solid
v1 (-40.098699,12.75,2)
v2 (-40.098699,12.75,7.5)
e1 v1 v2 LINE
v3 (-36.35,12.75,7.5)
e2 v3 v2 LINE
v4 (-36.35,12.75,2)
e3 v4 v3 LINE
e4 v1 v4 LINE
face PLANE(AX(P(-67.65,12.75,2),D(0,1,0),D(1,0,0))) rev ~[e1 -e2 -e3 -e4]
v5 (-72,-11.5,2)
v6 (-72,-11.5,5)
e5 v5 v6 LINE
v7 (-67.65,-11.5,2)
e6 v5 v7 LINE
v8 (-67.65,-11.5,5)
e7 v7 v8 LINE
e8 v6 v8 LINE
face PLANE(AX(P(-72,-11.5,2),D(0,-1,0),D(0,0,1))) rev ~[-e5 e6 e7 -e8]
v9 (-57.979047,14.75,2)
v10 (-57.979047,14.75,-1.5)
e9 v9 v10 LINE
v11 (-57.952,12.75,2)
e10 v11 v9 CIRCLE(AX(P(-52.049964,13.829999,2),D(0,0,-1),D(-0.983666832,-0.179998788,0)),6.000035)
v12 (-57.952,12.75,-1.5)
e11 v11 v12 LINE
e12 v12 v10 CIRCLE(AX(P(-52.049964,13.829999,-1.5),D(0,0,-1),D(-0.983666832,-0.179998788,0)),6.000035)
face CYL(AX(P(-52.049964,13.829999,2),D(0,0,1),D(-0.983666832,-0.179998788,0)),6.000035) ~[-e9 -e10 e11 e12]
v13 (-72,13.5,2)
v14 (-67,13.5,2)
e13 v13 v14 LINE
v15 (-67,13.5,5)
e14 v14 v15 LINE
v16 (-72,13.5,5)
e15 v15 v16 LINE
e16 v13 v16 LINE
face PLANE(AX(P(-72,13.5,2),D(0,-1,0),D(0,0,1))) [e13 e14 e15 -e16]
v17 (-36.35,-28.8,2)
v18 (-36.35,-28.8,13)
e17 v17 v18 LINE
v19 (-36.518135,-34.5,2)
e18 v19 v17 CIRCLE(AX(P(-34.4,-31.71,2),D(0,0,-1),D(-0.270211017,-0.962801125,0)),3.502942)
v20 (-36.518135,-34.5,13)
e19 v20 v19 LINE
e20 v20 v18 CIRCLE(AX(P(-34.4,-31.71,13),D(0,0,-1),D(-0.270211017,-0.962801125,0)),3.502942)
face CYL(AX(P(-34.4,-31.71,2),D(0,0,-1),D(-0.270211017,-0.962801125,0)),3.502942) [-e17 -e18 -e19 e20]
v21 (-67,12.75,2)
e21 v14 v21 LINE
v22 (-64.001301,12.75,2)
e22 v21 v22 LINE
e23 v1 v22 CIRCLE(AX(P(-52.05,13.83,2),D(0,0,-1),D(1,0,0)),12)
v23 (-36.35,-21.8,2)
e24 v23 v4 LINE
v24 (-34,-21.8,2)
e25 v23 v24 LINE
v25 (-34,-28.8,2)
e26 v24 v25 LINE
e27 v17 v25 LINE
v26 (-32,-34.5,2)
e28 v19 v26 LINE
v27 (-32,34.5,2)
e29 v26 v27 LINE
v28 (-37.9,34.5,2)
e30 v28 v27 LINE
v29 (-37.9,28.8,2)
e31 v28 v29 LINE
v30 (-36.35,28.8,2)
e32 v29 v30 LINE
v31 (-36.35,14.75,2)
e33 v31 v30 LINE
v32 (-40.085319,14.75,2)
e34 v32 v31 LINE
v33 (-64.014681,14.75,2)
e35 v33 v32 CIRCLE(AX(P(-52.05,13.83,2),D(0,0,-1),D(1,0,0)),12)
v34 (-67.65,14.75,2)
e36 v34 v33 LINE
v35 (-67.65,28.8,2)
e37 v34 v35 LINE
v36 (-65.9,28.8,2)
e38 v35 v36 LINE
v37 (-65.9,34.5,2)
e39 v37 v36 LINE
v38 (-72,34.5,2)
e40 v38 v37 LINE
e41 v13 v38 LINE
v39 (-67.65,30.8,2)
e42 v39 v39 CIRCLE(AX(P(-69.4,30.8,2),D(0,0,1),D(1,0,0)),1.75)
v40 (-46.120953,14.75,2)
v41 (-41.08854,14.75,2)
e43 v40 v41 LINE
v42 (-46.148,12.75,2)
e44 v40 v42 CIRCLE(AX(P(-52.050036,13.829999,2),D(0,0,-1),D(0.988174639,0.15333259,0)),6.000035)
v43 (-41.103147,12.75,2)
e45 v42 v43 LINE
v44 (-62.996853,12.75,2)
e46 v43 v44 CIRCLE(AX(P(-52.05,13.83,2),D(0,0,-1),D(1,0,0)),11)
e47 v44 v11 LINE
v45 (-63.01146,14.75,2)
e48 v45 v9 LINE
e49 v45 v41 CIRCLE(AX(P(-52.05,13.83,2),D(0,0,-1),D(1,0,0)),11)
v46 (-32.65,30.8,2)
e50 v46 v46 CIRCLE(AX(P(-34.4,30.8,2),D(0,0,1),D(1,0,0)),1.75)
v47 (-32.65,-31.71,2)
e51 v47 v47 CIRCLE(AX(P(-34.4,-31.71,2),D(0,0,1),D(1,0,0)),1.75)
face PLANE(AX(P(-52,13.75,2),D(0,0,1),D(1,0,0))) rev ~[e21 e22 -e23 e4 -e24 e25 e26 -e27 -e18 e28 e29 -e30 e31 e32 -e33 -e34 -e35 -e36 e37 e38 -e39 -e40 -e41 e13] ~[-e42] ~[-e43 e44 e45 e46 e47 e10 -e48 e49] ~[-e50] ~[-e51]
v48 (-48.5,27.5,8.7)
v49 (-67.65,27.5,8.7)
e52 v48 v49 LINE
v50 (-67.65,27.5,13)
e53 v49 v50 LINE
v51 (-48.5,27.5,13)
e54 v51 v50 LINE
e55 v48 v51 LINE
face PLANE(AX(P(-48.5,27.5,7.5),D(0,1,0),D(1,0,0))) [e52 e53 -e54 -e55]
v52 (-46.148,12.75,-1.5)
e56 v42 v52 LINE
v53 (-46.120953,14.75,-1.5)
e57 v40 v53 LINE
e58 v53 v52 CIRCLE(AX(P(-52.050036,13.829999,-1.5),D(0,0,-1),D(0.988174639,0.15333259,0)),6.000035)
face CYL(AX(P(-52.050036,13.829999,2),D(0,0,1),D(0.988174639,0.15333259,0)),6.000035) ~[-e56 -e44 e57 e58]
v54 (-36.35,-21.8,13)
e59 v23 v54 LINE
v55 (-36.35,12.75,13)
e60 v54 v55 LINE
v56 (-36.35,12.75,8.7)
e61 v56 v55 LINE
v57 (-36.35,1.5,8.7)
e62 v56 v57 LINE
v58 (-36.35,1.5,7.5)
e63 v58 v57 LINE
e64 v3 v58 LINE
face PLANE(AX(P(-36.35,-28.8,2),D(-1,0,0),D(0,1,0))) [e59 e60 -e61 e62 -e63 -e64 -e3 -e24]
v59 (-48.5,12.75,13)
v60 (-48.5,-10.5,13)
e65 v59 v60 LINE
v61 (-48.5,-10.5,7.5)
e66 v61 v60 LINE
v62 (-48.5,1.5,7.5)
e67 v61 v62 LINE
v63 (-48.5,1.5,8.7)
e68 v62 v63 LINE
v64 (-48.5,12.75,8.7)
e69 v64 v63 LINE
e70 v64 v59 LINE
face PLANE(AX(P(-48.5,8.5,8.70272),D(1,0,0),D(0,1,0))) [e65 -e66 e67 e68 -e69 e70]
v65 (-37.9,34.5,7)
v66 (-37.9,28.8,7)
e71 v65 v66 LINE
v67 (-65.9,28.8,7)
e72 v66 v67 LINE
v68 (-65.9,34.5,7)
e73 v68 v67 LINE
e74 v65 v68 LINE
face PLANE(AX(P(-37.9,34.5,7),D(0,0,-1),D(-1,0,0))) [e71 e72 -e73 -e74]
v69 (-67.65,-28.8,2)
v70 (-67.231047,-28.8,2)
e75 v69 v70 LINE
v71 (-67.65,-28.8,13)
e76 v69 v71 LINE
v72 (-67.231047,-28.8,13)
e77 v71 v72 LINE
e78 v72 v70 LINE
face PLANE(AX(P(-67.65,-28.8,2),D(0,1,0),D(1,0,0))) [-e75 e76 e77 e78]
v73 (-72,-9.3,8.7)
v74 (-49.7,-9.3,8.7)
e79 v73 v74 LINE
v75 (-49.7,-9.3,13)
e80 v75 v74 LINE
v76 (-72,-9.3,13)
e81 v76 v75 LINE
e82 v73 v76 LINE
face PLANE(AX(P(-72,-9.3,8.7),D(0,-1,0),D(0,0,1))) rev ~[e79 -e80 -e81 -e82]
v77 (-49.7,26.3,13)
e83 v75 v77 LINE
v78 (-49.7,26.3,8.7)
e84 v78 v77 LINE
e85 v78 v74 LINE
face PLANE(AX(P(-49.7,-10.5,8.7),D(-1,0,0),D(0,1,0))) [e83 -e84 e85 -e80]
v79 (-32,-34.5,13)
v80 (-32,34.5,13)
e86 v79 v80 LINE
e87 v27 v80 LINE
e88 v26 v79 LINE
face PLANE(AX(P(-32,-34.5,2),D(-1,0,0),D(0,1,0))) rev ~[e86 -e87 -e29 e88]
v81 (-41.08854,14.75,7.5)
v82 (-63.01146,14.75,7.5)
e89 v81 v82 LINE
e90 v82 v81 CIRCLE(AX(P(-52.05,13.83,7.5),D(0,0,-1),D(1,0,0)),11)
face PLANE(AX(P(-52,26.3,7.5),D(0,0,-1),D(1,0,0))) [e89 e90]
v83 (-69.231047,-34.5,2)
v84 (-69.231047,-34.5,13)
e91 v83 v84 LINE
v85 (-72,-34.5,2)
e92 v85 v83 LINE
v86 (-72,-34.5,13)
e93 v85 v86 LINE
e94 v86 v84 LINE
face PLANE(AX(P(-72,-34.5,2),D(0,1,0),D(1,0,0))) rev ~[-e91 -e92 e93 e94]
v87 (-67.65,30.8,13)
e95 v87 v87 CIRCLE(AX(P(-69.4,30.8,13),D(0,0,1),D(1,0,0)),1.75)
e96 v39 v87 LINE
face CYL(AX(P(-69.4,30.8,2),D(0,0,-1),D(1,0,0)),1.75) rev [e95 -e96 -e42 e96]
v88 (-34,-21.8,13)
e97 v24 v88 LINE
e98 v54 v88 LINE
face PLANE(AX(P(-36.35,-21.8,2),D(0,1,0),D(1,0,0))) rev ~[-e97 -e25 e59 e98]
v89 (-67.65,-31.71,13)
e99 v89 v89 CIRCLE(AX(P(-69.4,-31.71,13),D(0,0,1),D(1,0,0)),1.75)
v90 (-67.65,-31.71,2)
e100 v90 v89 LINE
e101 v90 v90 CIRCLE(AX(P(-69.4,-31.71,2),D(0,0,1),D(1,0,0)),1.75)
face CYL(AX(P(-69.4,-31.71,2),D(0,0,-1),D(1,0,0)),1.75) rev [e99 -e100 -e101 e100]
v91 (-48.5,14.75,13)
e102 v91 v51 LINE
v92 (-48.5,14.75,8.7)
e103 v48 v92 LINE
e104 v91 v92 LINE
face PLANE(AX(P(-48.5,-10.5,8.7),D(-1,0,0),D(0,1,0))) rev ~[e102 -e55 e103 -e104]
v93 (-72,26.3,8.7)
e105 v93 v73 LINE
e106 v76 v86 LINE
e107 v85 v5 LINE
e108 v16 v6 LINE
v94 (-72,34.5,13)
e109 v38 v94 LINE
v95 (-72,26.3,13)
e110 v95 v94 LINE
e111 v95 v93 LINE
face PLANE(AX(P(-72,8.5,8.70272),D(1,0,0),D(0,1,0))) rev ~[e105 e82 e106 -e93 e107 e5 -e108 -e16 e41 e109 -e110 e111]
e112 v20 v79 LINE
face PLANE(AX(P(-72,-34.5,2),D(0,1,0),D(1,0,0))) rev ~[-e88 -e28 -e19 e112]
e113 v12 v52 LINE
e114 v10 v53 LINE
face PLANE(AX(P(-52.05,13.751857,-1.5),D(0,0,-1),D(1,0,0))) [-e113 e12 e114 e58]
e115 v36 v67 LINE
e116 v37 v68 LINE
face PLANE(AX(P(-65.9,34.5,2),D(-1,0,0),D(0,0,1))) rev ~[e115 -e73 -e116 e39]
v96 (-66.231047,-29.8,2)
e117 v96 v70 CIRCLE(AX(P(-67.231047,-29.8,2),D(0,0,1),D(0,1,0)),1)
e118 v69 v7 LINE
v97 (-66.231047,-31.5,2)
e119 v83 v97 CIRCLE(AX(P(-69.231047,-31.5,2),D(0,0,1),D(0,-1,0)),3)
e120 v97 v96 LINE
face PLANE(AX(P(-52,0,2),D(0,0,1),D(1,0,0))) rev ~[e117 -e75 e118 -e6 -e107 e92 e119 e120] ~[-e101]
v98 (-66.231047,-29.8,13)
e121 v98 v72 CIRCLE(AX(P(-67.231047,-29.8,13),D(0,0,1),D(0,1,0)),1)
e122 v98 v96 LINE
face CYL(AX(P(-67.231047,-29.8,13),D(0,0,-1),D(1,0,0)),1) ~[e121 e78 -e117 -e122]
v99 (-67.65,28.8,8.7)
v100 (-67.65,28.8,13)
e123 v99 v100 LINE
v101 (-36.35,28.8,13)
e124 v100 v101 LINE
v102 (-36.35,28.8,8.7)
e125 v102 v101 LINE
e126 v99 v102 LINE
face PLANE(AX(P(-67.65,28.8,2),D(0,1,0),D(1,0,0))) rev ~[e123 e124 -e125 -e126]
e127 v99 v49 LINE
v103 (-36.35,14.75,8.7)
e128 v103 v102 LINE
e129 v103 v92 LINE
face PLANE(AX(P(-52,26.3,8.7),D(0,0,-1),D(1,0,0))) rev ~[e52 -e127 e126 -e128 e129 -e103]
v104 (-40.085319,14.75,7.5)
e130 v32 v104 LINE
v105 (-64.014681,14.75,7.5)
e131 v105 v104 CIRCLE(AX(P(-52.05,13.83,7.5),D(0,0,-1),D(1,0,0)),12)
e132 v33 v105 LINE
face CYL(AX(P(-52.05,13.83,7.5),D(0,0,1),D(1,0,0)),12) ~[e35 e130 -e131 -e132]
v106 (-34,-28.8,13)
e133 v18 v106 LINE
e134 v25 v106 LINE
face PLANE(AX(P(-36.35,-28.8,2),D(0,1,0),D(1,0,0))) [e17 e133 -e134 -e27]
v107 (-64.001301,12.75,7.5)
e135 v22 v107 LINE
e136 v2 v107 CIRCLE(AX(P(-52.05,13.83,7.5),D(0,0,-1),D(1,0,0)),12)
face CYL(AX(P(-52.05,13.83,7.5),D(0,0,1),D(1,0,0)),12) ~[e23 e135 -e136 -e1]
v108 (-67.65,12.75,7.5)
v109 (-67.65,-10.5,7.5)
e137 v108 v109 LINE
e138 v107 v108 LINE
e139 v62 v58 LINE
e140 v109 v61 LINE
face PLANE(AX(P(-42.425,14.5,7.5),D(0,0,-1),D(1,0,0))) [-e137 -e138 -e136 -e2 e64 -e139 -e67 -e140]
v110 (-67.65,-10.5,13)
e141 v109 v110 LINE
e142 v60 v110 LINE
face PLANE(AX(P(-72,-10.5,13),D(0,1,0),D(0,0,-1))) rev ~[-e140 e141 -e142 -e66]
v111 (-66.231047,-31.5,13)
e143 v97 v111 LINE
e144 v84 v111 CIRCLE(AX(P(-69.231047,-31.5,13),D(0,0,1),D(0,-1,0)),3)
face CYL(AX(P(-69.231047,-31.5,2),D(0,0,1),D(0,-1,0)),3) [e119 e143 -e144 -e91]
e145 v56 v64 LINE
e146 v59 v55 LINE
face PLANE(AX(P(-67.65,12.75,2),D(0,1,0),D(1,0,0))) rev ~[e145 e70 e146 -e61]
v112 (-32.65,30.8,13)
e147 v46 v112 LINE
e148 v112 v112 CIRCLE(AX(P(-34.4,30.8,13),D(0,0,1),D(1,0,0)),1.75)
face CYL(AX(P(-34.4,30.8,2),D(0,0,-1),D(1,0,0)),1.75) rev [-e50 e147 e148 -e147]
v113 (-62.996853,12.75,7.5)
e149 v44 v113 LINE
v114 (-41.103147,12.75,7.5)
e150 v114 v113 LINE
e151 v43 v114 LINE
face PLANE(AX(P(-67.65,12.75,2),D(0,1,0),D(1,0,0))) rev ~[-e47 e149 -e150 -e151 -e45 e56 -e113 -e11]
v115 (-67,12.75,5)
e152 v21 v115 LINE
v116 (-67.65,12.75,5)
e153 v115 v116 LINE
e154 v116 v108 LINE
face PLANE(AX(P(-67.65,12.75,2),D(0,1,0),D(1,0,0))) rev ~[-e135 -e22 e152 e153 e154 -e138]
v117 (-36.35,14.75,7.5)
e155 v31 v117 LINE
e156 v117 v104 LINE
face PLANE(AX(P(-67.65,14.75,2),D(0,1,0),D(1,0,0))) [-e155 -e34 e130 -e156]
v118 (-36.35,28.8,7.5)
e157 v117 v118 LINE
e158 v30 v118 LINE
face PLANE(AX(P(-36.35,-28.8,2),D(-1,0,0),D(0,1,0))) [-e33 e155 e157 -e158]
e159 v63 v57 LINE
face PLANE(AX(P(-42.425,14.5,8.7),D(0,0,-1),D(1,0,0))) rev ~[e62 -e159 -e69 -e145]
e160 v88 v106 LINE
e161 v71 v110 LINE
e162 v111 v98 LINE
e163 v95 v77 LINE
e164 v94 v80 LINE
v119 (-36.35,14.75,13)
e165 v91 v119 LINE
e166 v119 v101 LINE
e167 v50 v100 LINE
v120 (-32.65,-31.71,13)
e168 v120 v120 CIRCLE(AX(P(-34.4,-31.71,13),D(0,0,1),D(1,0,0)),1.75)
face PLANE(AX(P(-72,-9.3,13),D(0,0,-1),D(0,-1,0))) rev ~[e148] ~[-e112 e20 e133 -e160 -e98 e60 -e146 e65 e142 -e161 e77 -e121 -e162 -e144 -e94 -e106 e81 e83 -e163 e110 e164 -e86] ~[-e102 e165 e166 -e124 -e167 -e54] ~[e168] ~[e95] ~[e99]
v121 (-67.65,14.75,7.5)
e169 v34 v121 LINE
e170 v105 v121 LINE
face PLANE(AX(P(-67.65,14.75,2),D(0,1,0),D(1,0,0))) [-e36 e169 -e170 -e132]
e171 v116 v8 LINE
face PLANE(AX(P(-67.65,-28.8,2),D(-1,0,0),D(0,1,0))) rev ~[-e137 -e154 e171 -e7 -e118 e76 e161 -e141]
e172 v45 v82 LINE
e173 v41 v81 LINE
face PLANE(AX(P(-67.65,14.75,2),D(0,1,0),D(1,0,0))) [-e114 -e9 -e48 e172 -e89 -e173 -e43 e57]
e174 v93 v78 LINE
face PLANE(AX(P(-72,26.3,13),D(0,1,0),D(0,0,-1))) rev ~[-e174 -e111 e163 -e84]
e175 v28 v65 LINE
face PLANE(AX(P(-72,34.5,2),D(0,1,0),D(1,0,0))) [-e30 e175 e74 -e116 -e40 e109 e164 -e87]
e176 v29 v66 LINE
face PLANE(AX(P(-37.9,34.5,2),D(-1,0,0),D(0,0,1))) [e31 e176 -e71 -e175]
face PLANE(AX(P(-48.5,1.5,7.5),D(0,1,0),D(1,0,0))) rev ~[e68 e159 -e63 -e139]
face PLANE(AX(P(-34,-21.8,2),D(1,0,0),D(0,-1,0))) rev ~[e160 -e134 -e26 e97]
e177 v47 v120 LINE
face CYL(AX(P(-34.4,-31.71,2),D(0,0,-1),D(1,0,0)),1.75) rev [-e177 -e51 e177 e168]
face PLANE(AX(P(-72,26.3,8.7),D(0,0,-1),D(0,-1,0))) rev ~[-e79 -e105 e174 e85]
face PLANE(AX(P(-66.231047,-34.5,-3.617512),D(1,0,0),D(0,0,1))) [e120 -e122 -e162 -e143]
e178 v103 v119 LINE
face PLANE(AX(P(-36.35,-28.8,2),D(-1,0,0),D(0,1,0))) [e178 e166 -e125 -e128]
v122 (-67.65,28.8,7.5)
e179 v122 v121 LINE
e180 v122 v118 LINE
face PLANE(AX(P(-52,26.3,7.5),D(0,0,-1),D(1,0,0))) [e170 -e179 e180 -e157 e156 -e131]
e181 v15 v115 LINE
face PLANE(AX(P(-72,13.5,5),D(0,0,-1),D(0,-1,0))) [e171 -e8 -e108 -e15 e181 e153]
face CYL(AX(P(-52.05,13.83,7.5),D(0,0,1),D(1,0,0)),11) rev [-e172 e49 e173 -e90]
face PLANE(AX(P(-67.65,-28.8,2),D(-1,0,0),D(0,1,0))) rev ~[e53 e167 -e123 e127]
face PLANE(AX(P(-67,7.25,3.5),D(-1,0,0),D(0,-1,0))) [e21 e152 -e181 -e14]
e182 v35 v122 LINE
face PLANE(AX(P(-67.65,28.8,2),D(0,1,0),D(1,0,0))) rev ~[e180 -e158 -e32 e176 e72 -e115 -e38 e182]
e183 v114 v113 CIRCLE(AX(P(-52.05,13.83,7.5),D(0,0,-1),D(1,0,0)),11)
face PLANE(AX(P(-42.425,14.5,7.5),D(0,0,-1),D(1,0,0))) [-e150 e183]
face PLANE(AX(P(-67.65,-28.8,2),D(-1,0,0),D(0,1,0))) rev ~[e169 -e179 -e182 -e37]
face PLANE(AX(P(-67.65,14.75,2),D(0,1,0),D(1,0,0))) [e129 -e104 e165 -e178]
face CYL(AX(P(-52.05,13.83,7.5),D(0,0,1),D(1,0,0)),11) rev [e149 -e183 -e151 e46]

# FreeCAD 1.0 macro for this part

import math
import FreeCAD as App
import Part
import Sketcher

V = App.Vector
Q = App.Units.Quantity


def edges_at(feature, points):
    """Names of the edges that pass closest to the given points."""
    edges = feature.Shape.Edges
    near = lambda p: min(range(len(edges)), key=lambda i: edges[i].distToShape(Part.Vertex(*p))[0])
    return sorted({f"Edge{near(p) + 1}" for p in points})

doc = App.newDocument("Part")
body = doc.addObject("PartDesign::Body", "Body")

# Sketch on XY plane
sketch1 = doc.addObject("Sketcher::SketchObject", "Sketch")
body.addObject(sketch1)
sketch1.AttachmentSupport = (doc.XY_Plane, [""])
sketch1.MapMode = "FlatFace"
sketch1.addGeometry(Part.LineSegment(V(-20.1, 33.5, 0), V(-20.1, -35.5, 0)), False)
sketch1.addGeometry(Part.LineSegment(V(-20.1, -35.5, 0), V(19.9, -35.5, 0)), False)
sketch1.addGeometry(Part.LineSegment(V(19.9, -35.5, 0), V(19.9, 33.5, 0)), False)
sketch1.addGeometry(Part.LineSegment(V(19.9, 33.5, 0), V(-20.1, 33.5, 0)), False)
sketch1.addGeometry(Part.Circle(V(-17.5, -32.7, 0), V(0, 0, 1), 1.8), False)
sketch1.addGeometry(Part.Circle(V(17.5, -32.7, 0), V(0, 0, 1), 1.8), False)
sketch1.addGeometry(Part.LineSegment(V(15.6, -29.8, 0), V(-15.8, -29.8, 0)), False)
sketch1.addGeometry(Part.LineSegment(V(-15.8, -29.8, 0), V(-15.8, 27.8, 0)), False)
sketch1.addGeometry(Part.LineSegment(V(-15.8, 27.8, 0), V(15.6, 27.8, 0)), False)
sketch1.addGeometry(Part.LineSegment(V(15.6, 27.8, 0), V(15.6, -29.8, 0)), False)
sketch1.addGeometry(Part.Circle(V(-17.5, 29.8, 0), V(0, 0, 1), 1.8), False)
sketch1.addGeometry(Part.Circle(V(17.5, 29.8, 0), V(0, 0, 1), 1.8), False)
sketch1.addConstraint(Sketcher.Constraint("Coincident", 0, 2, 1, 1))
sketch1.addConstraint(Sketcher.Constraint("Coincident", 1, 2, 2, 1))
sketch1.addConstraint(Sketcher.Constraint("Coincident", 2, 2, 3, 1))
sketch1.addConstraint(Sketcher.Constraint("Coincident", 3, 2, 0, 1))
sketch1.addConstraint(Sketcher.Constraint("Coincident", 6, 2, 7, 1))
sketch1.addConstraint(Sketcher.Constraint("Coincident", 7, 2, 8, 1))
sketch1.addConstraint(Sketcher.Constraint("Coincident", 8, 2, 9, 1))
sketch1.addConstraint(Sketcher.Constraint("Coincident", 9, 2, 6, 1))
sketch1.addConstraint(Sketcher.Constraint("Vertical", 0))
sketch1.addConstraint(Sketcher.Constraint("Horizontal", 1))
sketch1.addConstraint(Sketcher.Constraint("Vertical", 2))
sketch1.addConstraint(Sketcher.Constraint("Horizontal", 3))
sketch1.addConstraint(Sketcher.Constraint("Horizontal", 6))
sketch1.addConstraint(Sketcher.Constraint("Vertical", 7))
sketch1.addConstraint(Sketcher.Constraint("Horizontal", 8))
sketch1.addConstraint(Sketcher.Constraint("Vertical", 9))
sketch1.addConstraint(Sketcher.Constraint("Equal", 4, 5))
sketch1.addConstraint(Sketcher.Constraint("Equal", 5, 10))
sketch1.addConstraint(Sketcher.Constraint("Equal", 10, 11))
sketch1.addConstraint(Sketcher.Constraint("Symmetric", 4, 3, 5, 3, -2))
sketch1.addConstraint(Sketcher.Constraint("Symmetric", 10, 3, 11, 3, -2))
sketch1.addConstraint(Sketcher.Constraint("Vertical", 4, 3, 10, 3))
sketch1.addConstraint(Sketcher.Constraint("Diameter", 4, Q("3.5 mm")))
sketch1.addConstraint(Sketcher.Constraint("DistanceX", 1, 1, 1, 2, Q("40 mm")))
sketch1.addConstraint(Sketcher.Constraint("DistanceY", 0, 2, 0, 1, Q("69 mm")))
sketch1.addConstraint(Sketcher.Constraint("DistanceX", 6, 2, 6, 1, Q("31.3 mm")))
sketch1.addConstraint(Sketcher.Constraint("DistanceY", 7, 1, 7, 2, Q("57.6 mm")))
sketch1.addConstraint(Sketcher.Constraint("DistanceX", 4, 3, 5, 3, Q("35 mm")))
sketch1.addConstraint(Sketcher.Constraint("DistanceY", 7, 2, 10, 3, Q("2 mm")))
sketch1.addConstraint(Sketcher.Constraint("DistanceY", -1, 1, 10, 3, Q("29.8 mm")))
sketch1.addConstraint(Sketcher.Constraint("DistanceX", 0, 2, -1, 1, Q("20.1 mm")))
sketch1.addConstraint(Sketcher.Constraint("DistanceY", 0, 2, -1, 1, Q("35.5 mm")))
sketch1.addConstraint(Sketcher.Constraint("DistanceY", 4, 3, -1, 1, Q("32.71 mm")))
sketch1.addConstraint(Sketcher.Constraint("DistanceX", 6, 2, -1, 1, Q("15.75 mm")))
pad1 = doc.addObject("PartDesign::Pad", "Pad")
body.addObject(pad1)
pad1.Profile = sketch1
pad1.Length = 11

# Sketch on XZ plane
sketch2 = doc.addObject("Sketcher::SketchObject", "Sketch001")
body.addObject(sketch2)
sketch2.AttachmentSupport = (doc.XZ_Plane, [""])
sketch2.MapMode = "FlatFace"
sketch2.AttachmentOffset = App.Placement(V(0, 0, 35.5), App.Rotation())
sketch2.addGeometry(Part.LineSegment(V(-14, 17, 0), V(-14, -6, 0)), False)
sketch2.addGeometry(Part.LineSegment(V(-14, -6, 0), V(14, -6, 0)), False)
sketch2.addGeometry(Part.LineSegment(V(14, -6, 0), V(14, 17, 0)), False)
sketch2.addGeometry(Part.LineSegment(V(14, 17, 0), V(-14, 17, 0)), False)
sketch2.addConstraint(Sketcher.Constraint("Coincident", 0, 2, 1, 1))
sketch2.addConstraint(Sketcher.Constraint("Coincident", 1, 2, 2, 1))
sketch2.addConstraint(Sketcher.Constraint("Coincident", 2, 2, 3, 1))
sketch2.addConstraint(Sketcher.Constraint("Coincident", 3, 2, 0, 1))
sketch2.addConstraint(Sketcher.Constraint("Vertical", 0))
sketch2.addConstraint(Sketcher.Constraint("Horizontal", 1))
sketch2.addConstraint(Sketcher.Constraint("Vertical", 2))
sketch2.addConstraint(Sketcher.Constraint("Horizontal", 3))
sketch2.addConstraint(Sketcher.Constraint("DistanceX", 1, 1, 1, 2, Q("28 mm")))
sketch2.addConstraint(Sketcher.Constraint("DistanceY", 0, 2, 0, 1, Q("23 mm")))
sketch2.addConstraint(Sketcher.Constraint("DistanceY", 0, 2, -1, 1, Q("5.617512 mm")))
sketch2.addConstraint(Sketcher.Constraint("DistanceX", 0, 2, -1, 1, Q("14.331047 mm")))
pocket1 = doc.addObject("PartDesign::Pocket", "Pocket")
body.addObject(pocket1)
pocket1.Profile = sketch2
pocket1.Length = 8

# Sketch on XZ plane
sketch3 = doc.addObject("Sketcher::SketchObject", "Sketch002")
body.addObject(sketch3)
sketch3.AttachmentSupport = (doc.XZ_Plane, [""])
sketch3.MapMode = "FlatFace"
sketch3.AttachmentOffset = App.Placement(V(0, 0, -33.5), App.Rotation())
sketch3.addGeometry(Part.LineSegment(V(14, 5, 0), V(14, 0, 0)), False)
sketch3.addGeometry(Part.LineSegment(V(14, 0, 0), V(-14, 0, 0)), False)
sketch3.addGeometry(Part.LineSegment(V(-14, 0, 0), V(-14, 5, 0)), False)
sketch3.addGeometry(Part.LineSegment(V(-14, 5, 0), V(14, 5, 0)), False)
sketch3.addConstraint(Sketcher.Constraint("Coincident", 0, 2, 1, 1))
sketch3.addConstraint(Sketcher.Constraint("Coincident", 1, 2, 2, 1))
sketch3.addConstraint(Sketcher.Constraint("Coincident", 2, 2, 3, 1))
sketch3.addConstraint(Sketcher.Constraint("Coincident", 3, 2, 0, 1))
sketch3.addConstraint(Sketcher.Constraint("Vertical", 0))
sketch3.addConstraint(Sketcher.Constraint("Horizontal", 1))
sketch3.addConstraint(Sketcher.Constraint("Vertical", 2))
sketch3.addConstraint(Sketcher.Constraint("Horizontal", 3))
sketch3.addConstraint(Sketcher.Constraint("Symmetric", 0, 2, 1, 2, -1, 1))
sketch3.addConstraint(Sketcher.Constraint("DistanceX", 1, 2, 1, 1, Q("28 mm")))
sketch3.addConstraint(Sketcher.Constraint("DistanceY", 0, 2, 0, 1, Q("5 mm")))
pocket2 = doc.addObject("PartDesign::Pocket", "Pocket001")
body.addObject(pocket2)
pocket2.Profile = sketch3
pocket2.Length = 8
pocket2.Reversed = True

# Sketch on YZ plane
sketch4 = doc.addObject("Sketcher::SketchObject", "Sketch003")
body.addObject(sketch4)
sketch4.AttachmentSupport = (doc.YZ_Plane, [""])
sketch4.MapMode = "FlatFace"
sketch4.AttachmentOffset = App.Placement(V(0, 0, -20.1), App.Rotation())
sketch4.addGeometry(Part.LineSegment(V(12.5, 3, 0), V(12.5, 0, 0)), False)
sketch4.addGeometry(Part.LineSegment(V(12.5, 0, 0), V(-12.5, 0, 0)), False)
sketch4.addGeometry(Part.LineSegment(V(-12.5, 0, 0), V(-12.5, 3, 0)), False)
sketch4.addGeometry(Part.LineSegment(V(-12.5, 3, 0), V(12.5, 3, 0)), False)
sketch4.addConstraint(Sketcher.Constraint("Coincident", 0, 2, 1, 1))
sketch4.addConstraint(Sketcher.Constraint("Coincident", 1, 2, 2, 1))
sketch4.addConstraint(Sketcher.Constraint("Coincident", 2, 2, 3, 1))
sketch4.addConstraint(Sketcher.Constraint("Coincident", 3, 2, 0, 1))
sketch4.addConstraint(Sketcher.Constraint("Vertical", 0))
sketch4.addConstraint(Sketcher.Constraint("Horizontal", 1))
sketch4.addConstraint(Sketcher.Constraint("Vertical", 2))
sketch4.addConstraint(Sketcher.Constraint("Horizontal", 3))
sketch4.addConstraint(Sketcher.Constraint("Symmetric", 0, 2, 1, 2, -1, 1))
sketch4.addConstraint(Sketcher.Constraint("DistanceX", 1, 2, 1, 1, Q("25 mm")))
sketch4.addConstraint(Sketcher.Constraint("DistanceY", 0, 2, 0, 1, Q("3 mm")))
pocket3 = doc.addObject("PartDesign::Pocket", "Pocket002")
body.addObject(pocket3)
pocket3.Profile = sketch4
pocket3.Length = 7
pocket3.Reversed = True

# Sketch on YZ plane
sketch5 = doc.addObject("Sketcher::SketchObject", "Sketch004")
body.addObject(sketch5)
sketch5.AttachmentSupport = (doc.YZ_Plane, [""])
sketch5.MapMode = "FlatFace"
sketch5.AttachmentOffset = App.Placement(V(0, 0, -20.1), App.Rotation())
sketch5.addGeometry(Part.LineSegment(V(26, 11, 0), V(26, 6, 0)), False)
sketch5.addGeometry(Part.LineSegment(V(26, 6, 0), V(-12, 6, 0)), False)
sketch5.addGeometry(Part.LineSegment(V(-12, 6, 0), V(-12, 11, 0)), False)
sketch5.addGeometry(Part.LineSegment(V(-12, 11, 0), V(26, 11, 0)), False)
sketch5.addConstraint(Sketcher.Constraint("Coincident", 0, 2, 1, 1))
sketch5.addConstraint(Sketcher.Constraint("Coincident", 1, 2, 2, 1))
sketch5.addConstraint(Sketcher.Constraint("Coincident", 2, 2, 3, 1))
sketch5.addConstraint(Sketcher.Constraint("Coincident", 3, 2, 0, 1))
sketch5.addConstraint(Sketcher.Constraint("Vertical", 0))
sketch5.addConstraint(Sketcher.Constraint("Horizontal", 1))
sketch5.addConstraint(Sketcher.Constraint("Vertical", 2))
sketch5.addConstraint(Sketcher.Constraint("Horizontal", 3))
sketch5.addConstraint(Sketcher.Constraint("DistanceX", 1, 2, 1, 1, Q("38 mm")))
sketch5.addConstraint(Sketcher.Constraint("DistanceY", 0, 2, 0, 1, Q("5.5 mm")))
sketch5.addConstraint(Sketcher.Constraint("DistanceY", -1, 1, 2, 2, Q("11 mm")))
sketch5.addConstraint(Sketcher.Constraint("DistanceX", -1, 1, 0, 2, Q("26.5 mm")))
pocket4 = doc.addObject("PartDesign::Pocket", "Pocket003")
body.addObject(pocket4)
pocket4.Profile = sketch5
pocket4.Length = 5
pocket4.Reversed = True

# Sketch on XY plane
sketch6 = doc.addObject("Sketcher::SketchObject", "Sketch005")
body.addObject(sketch6)
sketch6.AttachmentSupport = (doc.XY_Plane, [""])
sketch6.MapMode = "FlatFace"
sketch6.addGeometry(Part.LineSegment(V(-15.8, 13.8, 0), V(-15.8, 11.8, 0)), False)
sketch6.addGeometry(Part.LineSegment(V(-15.8, 11.8, 0), V(15.6, 11.8, 0)), False)
sketch6.addGeometry(Part.LineSegment(V(15.6, 11.8, 0), V(15.6, 13.8, 0)), False)
sketch6.addGeometry(Part.LineSegment(V(15.6, 13.8, 0), V(-15.8, 13.8, 0)), False)
sketch6.addConstraint(Sketcher.Constraint("Coincident", 0, 2, 1, 1))
sketch6.addConstraint(Sketcher.Constraint("Coincident", 1, 2, 2, 1))
sketch6.addConstraint(Sketcher.Constraint("Coincident", 2, 2, 3, 1))
sketch6.addConstraint(Sketcher.Constraint("Coincident", 3, 2, 0, 1))
sketch6.addConstraint(Sketcher.Constraint("Vertical", 0))
sketch6.addConstraint(Sketcher.Constraint("Horizontal", 1))
sketch6.addConstraint(Sketcher.Constraint("Vertical", 2))
sketch6.addConstraint(Sketcher.Constraint("Horizontal", 3))
sketch6.addConstraint(Sketcher.Constraint("DistanceY", 0, 2, 0, 1, Q("2 mm")))
sketch6.addConstraint(Sketcher.Constraint("DistanceX", 1, 1, 1, 2, Q("31.3 mm")))
sketch6.addConstraint(Sketcher.Constraint("DistanceX", 0, 2, -1, 1, Q("15.75 mm")))
sketch6.addConstraint(Sketcher.Constraint("DistanceY", -1, 1, 0, 2, Q("11.75 mm")))
pad2 = doc.addObject("PartDesign::Pad", "Pad001")
body.addObject(pad2)
pad2.Profile = sketch6
pad2.Length = 11

# Sketch on YZ plane
sketch7 = doc.addObject("Sketcher::SketchObject", "Sketch006")
body.addObject(sketch7)
sketch7.AttachmentSupport = (doc.YZ_Plane, [""])
sketch7.MapMode = "FlatFace"
sketch7.AttachmentOffset = App.Placement(V(0, 0, -20.1), App.Rotation())
sketch7.addGeometry(Part.LineSegment(V(12.5, 3, 0), V(12.5, 0, 0)), False)
sketch7.addGeometry(Part.LineSegment(V(12.5, 0, 0), V(0, 0, 0)), False)
sketch7.addGeometry(Part.LineSegment(V(0, 0, 0), V(0, 3, 0)), False)
sketch7.addGeometry(Part.LineSegment(V(0, 3, 0), V(12.5, 3, 0)), False)
sketch7.addConstraint(Sketcher.Constraint("Coincident", 0, 2, 1, 1))
sketch7.addConstraint(Sketcher.Constraint("Coincident", 1, 2, 2, 1))
sketch7.addConstraint(Sketcher.Constraint("Coincident", 2, 2, 3, 1))
sketch7.addConstraint(Sketcher.Constraint("Coincident", 3, 2, 0, 1))
sketch7.addConstraint(Sketcher.Constraint("Vertical", 0))
sketch7.addConstraint(Sketcher.Constraint("Horizontal", 1))
sketch7.addConstraint(Sketcher.Constraint("Vertical", 2))
sketch7.addConstraint(Sketcher.Constraint("Horizontal", 3))
sketch7.addConstraint(Sketcher.Constraint("Coincident", 1, 2, -1, 1))
sketch7.addConstraint(Sketcher.Constraint("DistanceY", 0, 2, 0, 1, Q("3 mm")))
sketch7.addConstraint(Sketcher.Constraint("DistanceX", 1, 2, 1, 1, Q("12.5 mm")))
pocket5 = doc.addObject("PartDesign::Pocket", "Pocket004")
body.addObject(pocket5)
pocket5.Profile = sketch7
pocket5.Length = 5
pocket5.Reversed = True

# Sketch on YZ plane
sketch8 = doc.addObject("Sketcher::SketchObject", "Sketch007")
body.addObject(sketch8)
sketch8.AttachmentSupport = (doc.YZ_Plane, [""])
sketch8.MapMode = "FlatFace"
sketch8.AttachmentOffset = App.Placement(V(0, 0, -20.1), App.Rotation())
sketch8.addGeometry(Part.LineSegment(V(26, 11, 0), V(26, 6, 0)), False)
sketch8.addGeometry(Part.LineSegment(V(26, 6, 0), V(-12, 6, 0)), False)
sketch8.addGeometry(Part.LineSegment(V(-12, 6, 0), V(-12, 11, 0)), False)
sketch8.addGeometry(Part.LineSegment(V(-12, 11, 0), V(26, 11, 0)), False)
sketch8.addConstraint(Sketcher.Constraint("Coincident", 0, 2, 1, 1))
sketch8.addConstraint(Sketcher.Constraint("Coincident", 1, 2, 2, 1))
sketch8.addConstraint(Sketcher.Constraint("Coincident", 2, 2, 3, 1))
sketch8.addConstraint(Sketcher.Constraint("Coincident", 3, 2, 0, 1))
sketch8.addConstraint(Sketcher.Constraint("Vertical", 0))
sketch8.addConstraint(Sketcher.Constraint("Horizontal", 1))
sketch8.addConstraint(Sketcher.Constraint("Vertical", 2))
sketch8.addConstraint(Sketcher.Constraint("Horizontal", 3))
sketch8.addConstraint(Sketcher.Constraint("DistanceX", 1, 2, 1, 1, Q("38 mm")))
sketch8.addConstraint(Sketcher.Constraint("DistanceY", 0, 2, 0, 1, Q("5.5 mm")))
sketch8.addConstraint(Sketcher.Constraint("DistanceY", -1, 1, 2, 2, Q("11 mm")))
sketch8.addConstraint(Sketcher.Constraint("DistanceX", -1, 1, 0, 2, Q("26.5 mm")))
pocket6 = doc.addObject("PartDesign::Pocket", "Pocket005")
body.addObject(pocket6)
pocket6.Profile = sketch8
pocket6.Length = 23.5
pocket6.Reversed = True

# Sketch on YZ plane
sketch9 = doc.addObject("Sketcher::SketchObject", "Sketch008")
body.addObject(sketch9)
sketch9.AttachmentSupport = (doc.YZ_Plane, [""])
sketch9.MapMode = "FlatFace"
sketch9.AttachmentOffset = App.Placement(V(0, 0, -20.1), App.Rotation())
sketch9.addGeometry(Part.LineSegment(V(-11.5, 5.5, 0), V(-11.5, 11, 0)), False)
sketch9.addGeometry(Part.LineSegment(V(-11.5, 11, 0), V(-10.3, 11, 0)), False)
sketch9.addGeometry(Part.LineSegment(V(-10.3, 11, 0), V(-10.3, 6.7, 0)), False)
sketch9.addGeometry(Part.LineSegment(V(-10.3, 6.7, 0), V(25.3, 6.7, 0)), False)
sketch9.addGeometry(Part.LineSegment(V(25.3, 6.7, 0), V(25.3, 11, 0)), False)
sketch9.addGeometry(Part.LineSegment(V(25.3, 11, 0), V(26.5, 11, 0)), False)
sketch9.addGeometry(Part.LineSegment(V(26.5, 11, 0), V(26.5, 5.5, 0)), False)
sketch9.addGeometry(Part.LineSegment(V(26.5, 5.5, 0), V(-11.5, 5.5, 0)), False)
sketch9.addConstraint(Sketcher.Constraint("Coincident", 0, 2, 1, 1))
sketch9.addConstraint(Sketcher.Constraint("Coincident", 1, 2, 2, 1))
sketch9.addConstraint(Sketcher.Constraint("Coincident", 2, 2, 3, 1))
sketch9.addConstraint(Sketcher.Constraint("Coincident", 3, 2, 4, 1))
sketch9.addConstraint(Sketcher.Constraint("Coincident", 4, 2, 5, 1))
sketch9.addConstraint(Sketcher.Constraint("Coincident", 5, 2, 6, 1))
sketch9.addConstraint(Sketcher.Constraint("Coincident", 6, 2, 7, 1))
sketch9.addConstraint(Sketcher.Constraint("Coincident", 7, 2, 0, 1))
sketch9.addConstraint(Sketcher.Constraint("Vertical", 0))
sketch9.addConstraint(Sketcher.Constraint("Horizontal", 1))
sketch9.addConstraint(Sketcher.Constraint("Vertical", 2))
sketch9.addConstraint(Sketcher.Constraint("Horizontal", 3))
sketch9.addConstraint(Sketcher.Constraint("Vertical", 4))
sketch9.addConstraint(Sketcher.Constraint("Horizontal", 5))
sketch9.addConstraint(Sketcher.Constraint("Vertical", 6))
sketch9.addConstraint(Sketcher.Constraint("Horizontal", 7))
sketch9.addConstraint(Sketcher.Constraint("Horizontal", 1, 2, 4, 2))
sketch9.addConstraint(Sketcher.Constraint("Equal", 1, 5))
sketch9.addConstraint(Sketcher.Constraint("DistanceX", 7, 2, 7, 1, Q("38 mm")))
sketch9.addConstraint(Sketcher.Constraint("DistanceX", 1, 1, 1, 2, Q("1.2 mm")))
sketch9.addConstraint(Sketcher.Constraint("DistanceY", 0, 1, 0, 2, Q("5.5 mm")))
sketch9.addConstraint(Sketcher.Constraint("DistanceY", 2, 2, 2, 1, Q("4.3 mm")))
sketch9.addConstraint(Sketcher.Constraint("DistanceY", -1, 1, 0, 2, Q("11 mm")))
sketch9.addConstraint(Sketcher.Constraint("DistanceX", 0, 2, -1, 1, Q("11.5 mm")))
pad3 = doc.addObject("PartDesign::Pad", "Pad002")
body.addObject(pad3)
pad3.Profile = sketch9
pad3.Length = 23.5

# Sketch on XY plane
sketch10 = doc.addObject("Sketcher::SketchObject", "Sketch009")
body.addObject(sketch10)
sketch10.AttachmentSupport = (doc.XY_Plane, [""])
sketch10.MapMode = "FlatFace"
sketch10.AttachmentOffset = App.Placement(V(0, 0, 6.7), App.Rotation())
sketch10.addGeometry(Part.LineSegment(V(2.2, 26.5, 0), V(2.2, -11.5, 0)), False)
sketch10.addGeometry(Part.LineSegment(V(2.2, -11.5, 0), V(3.4, -11.5, 0)), False)
sketch10.addGeometry(Part.LineSegment(V(3.4, -11.5, 0), V(3.4, 26.5, 0)), False)
sketch10.addGeometry(Part.LineSegment(V(3.4, 26.5, 0), V(2.2, 26.5, 0)), False)
sketch10.addConstraint(Sketcher.Constraint("Coincident", 0, 2, 1, 1))
sketch10.addConstraint(Sketcher.Constraint("Coincident", 1, 2, 2, 1))
sketch10.addConstraint(Sketcher.Constraint("Coincident", 2, 2, 3, 1))
sketch10.addConstraint(Sketcher.Constraint("Coincident", 3, 2, 0, 1))
sketch10.addConstraint(Sketcher.Constraint("Vertical", 0))
sketch10.addConstraint(Sketcher.Constraint("Horizontal", 1))
sketch10.addConstraint(Sketcher.Constraint("Vertical", 2))
sketch10.addConstraint(Sketcher.Constraint("Horizontal", 3))
sketch10.addConstraint(Sketcher.Constraint("DistanceY", 0, 2, 0, 1, Q("38 mm")))
sketch10.addConstraint(Sketcher.Constraint("DistanceX", 1, 1, 1, 2, Q("1.2 mm")))
sketch10.addConstraint(Sketcher.Constraint("DistanceX", -1, 1, 0, 2, Q("2.2 mm")))
sketch10.addConstraint(Sketcher.Constraint("DistanceY", 0, 2, -1, 1, Q("11.5 mm")))
pad4 = doc.addObject("PartDesign::Pad", "Pad003")
body.addObject(pad4)
pad4.Profile = sketch10
pad4.Length = 4.3

# Sketch on XY plane
sketch11 = doc.addObject("Sketcher::SketchObject", "Sketch010")
body.addObject(sketch11)
sketch11.AttachmentSupport = (doc.XY_Plane, [""])
sketch11.MapMode = "FlatFace"
sketch11.AttachmentOffset = App.Placement(V(0, 0, 5.5), App.Rotation())
sketch11.addGeometry(Part.LineSegment(V(3, 0, 0), V(3, 26, 0)), False)
sketch11.addGeometry(Part.LineSegment(V(3, 26, 0), V(16, 26, 0)), False)
sketch11.addGeometry(Part.LineSegment(V(16, 26, 0), V(16, 0, 0)), False)
sketch11.addGeometry(Part.LineSegment(V(16, 0, 0), V(3, 0, 0)), False)
sketch11.addConstraint(Sketcher.Constraint("Coincident", 0, 2, 1, 1))
sketch11.addConstraint(Sketcher.Constraint("Coincident", 1, 2, 2, 1))
sketch11.addConstraint(Sketcher.Constraint("Coincident", 2, 2, 3, 1))
sketch11.addConstraint(Sketcher.Constraint("Coincident", 3, 2, 0, 1))
sketch11.addConstraint(Sketcher.Constraint("Vertical", 0))
sketch11.addConstraint(Sketcher.Constraint("Horizontal", 1))
sketch11.addConstraint(Sketcher.Constraint("Vertical", 2))
sketch11.addConstraint(Sketcher.Constraint("Horizontal", 3))
sketch11.addConstraint(Sketcher.Constraint("DistanceY", 0, 1, 0, 2, Q("26 mm")))
sketch11.addConstraint(Sketcher.Constraint("DistanceX", 1, 1, 1, 2, Q("12.15 mm")))
sketch11.addConstraint(Sketcher.Constraint("DistanceX", -1, 1, 0, 2, Q("3.4 mm")))
sketch11.addConstraint(Sketcher.Constraint("DistanceY", -1, 1, 0, 2, Q("26.5 mm")))
pad5 = doc.addObject("PartDesign::Pad", "Pad004")
body.addObject(pad5)
pad5.Profile = sketch11
pad5.Length = 1.2

# Sketch on XY plane
sketch12 = doc.addObject("Sketcher::SketchObject", "Sketch011")
body.addObject(sketch12)
sketch12.AttachmentSupport = (doc.XY_Plane, [""])
sketch12.MapMode = "FlatFace"
sketch12.addGeometry(Part.LineSegment(V(15.6, -29.8, 0), V(15.6, -22.8, 0)), False)
sketch12.addGeometry(Part.LineSegment(V(15.6, -22.8, 0), V(17.9, -22.8, 0)), False)
sketch12.addGeometry(Part.LineSegment(V(17.9, -22.8, 0), V(17.9, -29.8, 0)), False)
sketch12.addGeometry(Part.LineSegment(V(17.9, -29.8, 0), V(15.6, -29.8, 0)), False)
sketch12.addGeometry(Part.ArcOfCircle(Part.Circle(V(17.5, -32.7, 0), V(0, 0, 1), 3.5), math.radians(124), math.radians(254)), False)
sketch12.addGeometry(Part.LineSegment(V(16.6, -36.1, 0), V(10.2, -36.1, 0)), False)
sketch12.addGeometry(Part.LineSegment(V(10.2, -36.1, 0), V(10.2, -29.8, 0)), False)
sketch12.addGeometry(Part.LineSegment(V(10.2, -29.8, 0), V(15.6, -29.8, 0)), False)
sketch12.addConstraint(Sketcher.Constraint("Coincident", 0, 2, 1, 1))
sketch12.addConstraint(Sketcher.Constraint("Coincident", 1, 2, 2, 1))
sketch12.addConstraint(Sketcher.Constraint("Coincident", 2, 2, 3, 1))
sketch12.addConstraint(Sketcher.Constraint("Coincident", 3, 2, 0, 1))
sketch12.addConstraint(Sketcher.Constraint("Coincident", 4, 2, 5, 1))
sketch12.addConstraint(Sketcher.Constraint("Coincident", 5, 2, 6, 1))
sketch12.addConstraint(Sketcher.Constraint("Coincident", 6, 2, 7, 1))
sketch12.addConstraint(Sketcher.Constraint("Coincident", 7, 2, 4, 1))
sketch12.addConstraint(Sketcher.Constraint("Vertical", 0))
sketch12.addConstraint(Sketcher.Constraint("Horizontal", 1))
sketch12.addConstraint(Sketcher.Constraint("Vertical", 2))
sketch12.addConstraint(Sketcher.Constraint("Horizontal", 3))
sketch12.addConstraint(Sketcher.Constraint("Horizontal", 5))
sketch12.addConstraint(Sketcher.Constraint("Vertical", 6))
sketch12.addConstraint(Sketcher.Constraint("Horizontal", 7))
sketch12.addConstraint(Sketcher.Constraint("Coincident", 7, 2, 3, 2))
sketch12.addConstraint(Sketcher.Constraint("DistanceY", 0, 1, 0, 2, Q("7 mm")))
sketch12.addConstraint(Sketcher.Constraint("DistanceX", 1, 1, 1, 2, Q("2.35 mm")))
sketch12.addConstraint(Sketcher.Constraint("DistanceX", -1, 1, 4, 3, Q("17.5 mm")))
sketch12.addConstraint(Sketcher.Constraint("DistanceY", 0, 2, -1, 1, Q("22.8 mm")))
sketch12.addConstraint(Sketcher.Constraint("DistanceX", -1, 1, 1, 2, Q("17.9 mm")))
sketch12.addConstraint(Sketcher.Constraint("DistanceY", 4, 3, -1, 1, Q("32.71 mm")))
sketch12.addConstraint(Sketcher.Constraint("DistanceX", 5, 2, 5, 1, Q("6.364504 mm")))
sketch12.addConstraint(Sketcher.Constraint("DistanceX", 7, 1, 7, 2, Q("5.361037 mm")))
pocket7 = doc.addObject("PartDesign::Pocket", "Pocket006")
body.addObject(pocket7)
pocket7.Profile = sketch12
pocket7.Length = 13
pocket7.Reversed = True

# Sketch on XY plane
sketch13 = doc.addObject("Sketcher::SketchObject", "Sketch012")
body.addObject(sketch13)
sketch13.AttachmentSupport = (doc.XY_Plane, [""])
sketch13.MapMode = "FlatFace"
sketch13.AttachmentOffset = App.Placement(V(0, 0, 5.5), App.Rotation())
sketch13.addGeometry(Part.LineSegment(V(-16, 23, 0), V(-16, 28, 0)), False)
sketch13.addGeometry(Part.LineSegment(V(-16, 28, 0), V(16, 28, 0)), False)
sketch13.addGeometry(Part.LineSegment(V(16, 28, 0), V(16, 23, 0)), False)
sketch13.addGeometry(Part.LineSegment(V(16, 23, 0), V(-16, 23, 0)), False)
sketch13.addConstraint(Sketcher.Constraint("Coincident", 0, 2, 1, 1))
sketch13.addConstraint(Sketcher.Constraint("Coincident", 1, 2, 2, 1))
sketch13.addConstraint(Sketcher.Constraint("Coincident", 2, 2, 3, 1))
sketch13.addConstraint(Sketcher.Constraint("Coincident", 3, 2, 0, 1))
sketch13.addConstraint(Sketcher.Constraint("Vertical", 0))
sketch13.addConstraint(Sketcher.Constraint("Horizontal", 1))
sketch13.addConstraint(Sketcher.Constraint("Vertical", 2))
sketch13.addConstraint(Sketcher.Constraint("Horizontal", 3))
sketch13.addConstraint(Sketcher.Constraint("DistanceY", 0, 1, 0, 2, Q("5 mm")))
sketch13.addConstraint(Sketcher.Constraint("DistanceX", 1, 1, 1, 2, Q("31.3 mm")))
sketch13.addConstraint(Sketcher.Constraint("DistanceY", -1, 1, 0, 2, Q("27.8 mm")))
sketch13.addConstraint(Sketcher.Constraint("DistanceX", 0, 2, -1, 1, Q("15.75 mm")))
pad6 = doc.addObject("PartDesign::Pad", "Pad005")
body.addObject(pad6)
pad6.Profile = sketch13
pad6.Length = 1.2

# Sketch on XY plane
sketch14 = doc.addObject("Sketcher::SketchObject", "Sketch013")
body.addObject(sketch14)
sketch14.AttachmentSupport = (doc.XY_Plane, [""])
sketch14.MapMode = "FlatFace"
sketch14.AttachmentOffset = App.Placement(V(0, 0, 5.5), App.Rotation())
sketch14.addGeometry(Part.Circle(V(0, 13, 0), V(0, 0, 1), 12), False)
sketch14.addGeometry(Part.Circle(V(0, 13, 0), V(0, 0, 1), 11), False)
sketch14.addConstraint(Sketcher.Constraint("Coincident", 1, 3, 0, 3))
sketch14.addConstraint(Sketcher.Constraint("Diameter", 0, Q("24 mm")))
sketch14.addConstraint(Sketcher.Constraint("Diameter", 1, Q("22 mm")))
sketch14.addConstraint(Sketcher.Constraint("DistanceX", 0, 3, -1, 1, Q("0.15 mm")))
sketch14.addConstraint(Sketcher.Constraint("DistanceY", -1, 1, 0, 3, Q("12.83 mm")))
pad7 = doc.addObject("PartDesign::Pad", "Pad006")
body.addObject(pad7)
pad7.Profile = sketch14
pad7.Length = 5.5
pad7.Reversed = True

# Sketch on XY plane
sketch15 = doc.addObject("Sketcher::SketchObject", "Sketch014")
body.addObject(sketch15)
sketch15.AttachmentSupport = (doc.XY_Plane, [""])
sketch15.MapMode = "FlatFace"
sketch15.addGeometry(Part.ArcOfCircle(Part.Circle(V(-0.1, 12.8, 0), V(0, 0, 1), 6), math.radians(171.18), math.radians(190.37)), False)
sketch15.addGeometry(Part.LineSegment(V(-6.1, 13.8, 0), V(5.8, 13.8, 0)), False)
sketch15.addGeometry(Part.ArcOfCircle(Part.Circle(V(-0.2, 12.8, 0), V(0, 0, 1), 6), math.radians(-10.37), math.radians(8.82)), False)
sketch15.addGeometry(Part.LineSegment(V(5.8, 11.8, 0), V(-6.1, 11.8, 0)), False)
sketch15.addConstraint(Sketcher.Constraint("Coincident", 0, 1, 1, 1))
sketch15.addConstraint(Sketcher.Constraint("Coincident", 1, 2, 2, 2))
sketch15.addConstraint(Sketcher.Constraint("Coincident", 2, 1, 3, 1))
sketch15.addConstraint(Sketcher.Constraint("Coincident", 3, 2, 0, 2))
sketch15.addConstraint(Sketcher.Constraint("Horizontal", 1))
sketch15.addConstraint(Sketcher.Constraint("Horizontal", 3))
sketch15.addConstraint(Sketcher.Constraint("Equal", 0, 2))
sketch15.addConstraint(Sketcher.Constraint("Horizontal", 0, 3, 2, 3))
sketch15.addConstraint(Sketcher.Constraint("DistanceY", 2, 1, 1, 2, Q("2 mm")))
sketch15.addConstraint(Sketcher.Constraint("DistanceX", 3, 2, 3, 1, Q("11.804 mm")))
sketch15.addConstraint(Sketcher.Constraint("DistanceY", -1, 1, 0, 3, Q("12.829999 mm")))
sketch15.addConstraint(Sketcher.Constraint("DistanceY", -1, 1, 0, 1, Q("13.75 mm")))
sketch15.addConstraint(Sketcher.Constraint("DistanceX", -1, 1, 2, 1, Q("5.752 mm")))
sketch15.addConstraint(Sketcher.Constraint("Radius", 0, Q("6.000035 mm")))
pad8 = doc.addObject("PartDesign::Pad", "Pad007")
body.addObject(pad8)
pad8.Profile = sketch15
pad8.Length = 3.5
pad8.Reversed = True
doc.recompute()

fillet = doc.addObject("PartDesign::Fillet", "Fillet")
body.addObject(fillet)
fillet.Base = (pad8, edges_at(pad8, [(-14.331, -35.5, 5.5)]))
fillet.Radius = 3
doc.recompute()

fillet2 = doc.addObject("PartDesign::Fillet", "Fillet001")
body.addObject(fillet2)
fillet2.Base = (fillet, edges_at(fillet, [(-14.331, -29.8, 5.5)]))
fillet2.Radius = 1
body2 = doc.addObject("PartDesign::Body", "Body001")
doc.recompute()

body.Placement = App.Placement(V(-51.9, 1, 2), App.Rotation(V(0, 0, 1), 0))
boolean = doc.addObject("PartDesign::Boolean", "Boolean")
body2.addObject(boolean)
boolean.Type = "Fuse"
boolean.addObjects([body])

doc.recompute()
